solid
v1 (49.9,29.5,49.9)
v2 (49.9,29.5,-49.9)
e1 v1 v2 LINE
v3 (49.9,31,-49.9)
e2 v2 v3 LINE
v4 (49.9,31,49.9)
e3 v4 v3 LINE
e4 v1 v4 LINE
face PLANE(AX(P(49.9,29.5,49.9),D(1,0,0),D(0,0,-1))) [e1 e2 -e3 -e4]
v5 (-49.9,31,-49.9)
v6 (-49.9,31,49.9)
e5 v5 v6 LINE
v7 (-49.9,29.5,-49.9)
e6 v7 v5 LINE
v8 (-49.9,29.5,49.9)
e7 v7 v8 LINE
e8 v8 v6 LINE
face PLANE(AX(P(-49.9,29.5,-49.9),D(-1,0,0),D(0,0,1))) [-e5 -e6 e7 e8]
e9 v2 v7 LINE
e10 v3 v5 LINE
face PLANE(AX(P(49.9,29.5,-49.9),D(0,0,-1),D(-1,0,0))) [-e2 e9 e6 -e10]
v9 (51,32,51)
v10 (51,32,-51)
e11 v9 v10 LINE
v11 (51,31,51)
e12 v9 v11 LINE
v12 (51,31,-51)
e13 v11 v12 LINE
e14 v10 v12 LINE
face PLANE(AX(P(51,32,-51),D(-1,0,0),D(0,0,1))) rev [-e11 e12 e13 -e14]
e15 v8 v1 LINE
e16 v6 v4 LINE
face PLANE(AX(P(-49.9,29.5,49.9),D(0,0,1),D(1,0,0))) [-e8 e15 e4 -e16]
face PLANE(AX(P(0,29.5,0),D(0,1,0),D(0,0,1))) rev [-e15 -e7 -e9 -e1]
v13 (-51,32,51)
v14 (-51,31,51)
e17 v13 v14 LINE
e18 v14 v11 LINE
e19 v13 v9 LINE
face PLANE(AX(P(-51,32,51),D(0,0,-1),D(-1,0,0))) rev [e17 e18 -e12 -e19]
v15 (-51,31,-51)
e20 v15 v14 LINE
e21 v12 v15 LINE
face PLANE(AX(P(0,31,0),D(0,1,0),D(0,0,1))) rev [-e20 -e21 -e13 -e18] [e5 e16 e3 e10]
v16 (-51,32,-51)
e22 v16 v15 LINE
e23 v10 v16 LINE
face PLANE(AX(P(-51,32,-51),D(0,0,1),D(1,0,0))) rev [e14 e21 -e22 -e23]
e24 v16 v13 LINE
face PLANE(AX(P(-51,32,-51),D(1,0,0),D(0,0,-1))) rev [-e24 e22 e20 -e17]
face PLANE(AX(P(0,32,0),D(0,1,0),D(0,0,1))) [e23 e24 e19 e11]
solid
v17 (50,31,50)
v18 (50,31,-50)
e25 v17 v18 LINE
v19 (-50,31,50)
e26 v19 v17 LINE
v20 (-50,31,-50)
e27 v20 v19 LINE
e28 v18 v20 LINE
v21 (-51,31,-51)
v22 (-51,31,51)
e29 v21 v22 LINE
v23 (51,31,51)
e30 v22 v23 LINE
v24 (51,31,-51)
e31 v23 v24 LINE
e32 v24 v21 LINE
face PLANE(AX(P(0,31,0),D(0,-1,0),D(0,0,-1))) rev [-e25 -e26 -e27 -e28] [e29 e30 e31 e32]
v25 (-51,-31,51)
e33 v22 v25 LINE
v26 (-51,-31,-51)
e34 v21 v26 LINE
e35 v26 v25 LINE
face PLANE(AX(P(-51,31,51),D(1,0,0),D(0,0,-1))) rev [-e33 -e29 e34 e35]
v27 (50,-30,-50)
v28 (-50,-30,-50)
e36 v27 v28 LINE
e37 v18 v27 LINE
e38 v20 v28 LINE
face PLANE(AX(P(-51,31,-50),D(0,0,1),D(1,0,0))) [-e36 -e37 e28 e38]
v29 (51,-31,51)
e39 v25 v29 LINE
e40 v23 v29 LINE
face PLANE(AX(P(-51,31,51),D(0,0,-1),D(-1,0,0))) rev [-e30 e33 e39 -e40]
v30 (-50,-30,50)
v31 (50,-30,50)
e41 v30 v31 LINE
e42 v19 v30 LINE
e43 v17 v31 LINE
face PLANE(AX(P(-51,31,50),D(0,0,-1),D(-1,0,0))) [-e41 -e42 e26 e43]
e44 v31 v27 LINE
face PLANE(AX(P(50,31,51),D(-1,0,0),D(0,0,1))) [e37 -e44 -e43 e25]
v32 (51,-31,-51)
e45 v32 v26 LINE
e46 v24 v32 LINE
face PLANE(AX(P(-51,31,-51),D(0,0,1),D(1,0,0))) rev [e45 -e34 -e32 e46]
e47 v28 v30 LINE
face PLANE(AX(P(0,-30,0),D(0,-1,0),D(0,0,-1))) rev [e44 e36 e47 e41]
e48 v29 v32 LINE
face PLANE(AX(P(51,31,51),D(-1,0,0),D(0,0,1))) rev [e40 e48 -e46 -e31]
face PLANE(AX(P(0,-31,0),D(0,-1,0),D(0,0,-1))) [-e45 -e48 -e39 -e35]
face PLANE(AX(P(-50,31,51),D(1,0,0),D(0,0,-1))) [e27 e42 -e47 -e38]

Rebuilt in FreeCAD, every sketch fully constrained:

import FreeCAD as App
import Part
import Sketcher
Q = App.Units.Quantity


def faces_at(feature, points):
    """Names of the faces that lie closest to the given points."""
    faces = feature.Shape.Faces
    near = lambda p: min(range(len(faces)), key=lambda i: faces[i].distToShape(Part.Vertex(*p))[0])
    return sorted({f"Face{near(p) + 1}" for p in points})


def add_polygon(sketch, points):
    """Adds a closed chain of lines whose ends are joined by coincident constraints."""
    first, n = sketch.GeometryCount, len(points)
    for a, b in zip(points, points[1:] + points[:1]):
        sketch.addGeometry(Part.LineSegment(App.Vector(*a, 0), App.Vector(*b, 0)), False)
    for i in range(n):
        sketch.addConstraint(Sketcher.Constraint("Coincident", first + i, 2, first + (i + 1) % n, 1))

doc = App.newDocument("Part")
body = doc.addObject("PartDesign::Body", "Body")

# Sketch on XZ plane
sketch1 = body.newObject("Sketcher::SketchObject", "Sketch")
sketch1.AttachmentSupport = (doc.getObject("XZ_Plane"), [""])
sketch1.MapMode = "FlatFace"
add_polygon(sketch1, [(-51, -51), (-51, 51), (51, 51), (51, -51)])  # lines 0-3
sketch1.addConstraint([
    Sketcher.Constraint("Vertical", 0),
    Sketcher.Constraint("Horizontal", 1),
    Sketcher.Constraint("Vertical", 2),
    Sketcher.Constraint("Horizontal", 3),
    Sketcher.Constraint("Symmetric", 0, 2, 2, 2, -1, 1),
    Sketcher.Constraint("Equal", 3, 0),
    Sketcher.Constraint("DistanceX", 1, 1, 1, 2, Q("102 mm")),
])
pad1 = body.newObject("PartDesign::Pad", "Pad")
pad1.Profile = sketch1
pad1.Length = 62
pad1.Midplane = True
doc.recompute()

thickness = body.newObject("PartDesign::Thickness", "Thickness")
thickness.Base = (pad1, faces_at(pad1, [(0, 31, 0)]))
thickness.Value = 1
thickness.Reversed = True
thickness.Join = "Intersection"
body2 = doc.addObject("PartDesign::Body", "Body001")

# Sketch on XZ plane
sketch2 = body2.newObject("Sketcher::SketchObject", "Sketch001")
sketch2.AttachmentSupport = (doc.getObject("XZ_Plane001"), [""])
sketch2.MapMode = "FlatFace"
sketch2.AttachmentOffset = App.Placement(App.Vector(0, 0, -31), App.Rotation())
add_polygon(sketch2, [(-50, -50), (-50, 50), (50, 50), (50, -50)])  # lines 0-3
sketch2.addConstraint([
    Sketcher.Constraint("Vertical", 0),
    Sketcher.Constraint("Horizontal", 1),
    Sketcher.Constraint("Vertical", 2),
    Sketcher.Constraint("Horizontal", 3),
    Sketcher.Constraint("Symmetric", 0, 2, 2, 2, -1, 1),
    Sketcher.Constraint("Equal", 3, 0),
    Sketcher.Constraint("DistanceX", 1, 1, 1, 2, Q("99.8 mm")),
])
pad2 = body2.newObject("PartDesign::Pad", "Pad001")
pad2.Profile = sketch2
pad2.Length = 1.5

# Sketch on XZ plane
sketch3 = body2.newObject("Sketcher::SketchObject", "Sketch002")
sketch3.AttachmentSupport = (doc.getObject("XZ_Plane001"), [""])
sketch3.MapMode = "FlatFace"
sketch3.AttachmentOffset = App.Placement(App.Vector(0, 0, -31), App.Rotation())
add_polygon(sketch3, [(-51, -51), (-51, 51), (51, 51), (51, -51)])  # lines 0-3
sketch3.addConstraint([
    Sketcher.Constraint("Vertical", 0),
    Sketcher.Constraint("Horizontal", 1),
    Sketcher.Constraint("Vertical", 2),
    Sketcher.Constraint("Horizontal", 3),
    Sketcher.Constraint("Symmetric", 0, 2, 2, 2, -1, 1),
    Sketcher.Constraint("Equal", 3, 0),
    Sketcher.Constraint("DistanceX", 1, 1, 1, 2, Q("102 mm")),
])
pad3 = body2.newObject("PartDesign::Pad", "Pad002")
pad3.Profile = sketch3
pad3.Length = 1
pad3.Reversed = True

doc.recompute()
